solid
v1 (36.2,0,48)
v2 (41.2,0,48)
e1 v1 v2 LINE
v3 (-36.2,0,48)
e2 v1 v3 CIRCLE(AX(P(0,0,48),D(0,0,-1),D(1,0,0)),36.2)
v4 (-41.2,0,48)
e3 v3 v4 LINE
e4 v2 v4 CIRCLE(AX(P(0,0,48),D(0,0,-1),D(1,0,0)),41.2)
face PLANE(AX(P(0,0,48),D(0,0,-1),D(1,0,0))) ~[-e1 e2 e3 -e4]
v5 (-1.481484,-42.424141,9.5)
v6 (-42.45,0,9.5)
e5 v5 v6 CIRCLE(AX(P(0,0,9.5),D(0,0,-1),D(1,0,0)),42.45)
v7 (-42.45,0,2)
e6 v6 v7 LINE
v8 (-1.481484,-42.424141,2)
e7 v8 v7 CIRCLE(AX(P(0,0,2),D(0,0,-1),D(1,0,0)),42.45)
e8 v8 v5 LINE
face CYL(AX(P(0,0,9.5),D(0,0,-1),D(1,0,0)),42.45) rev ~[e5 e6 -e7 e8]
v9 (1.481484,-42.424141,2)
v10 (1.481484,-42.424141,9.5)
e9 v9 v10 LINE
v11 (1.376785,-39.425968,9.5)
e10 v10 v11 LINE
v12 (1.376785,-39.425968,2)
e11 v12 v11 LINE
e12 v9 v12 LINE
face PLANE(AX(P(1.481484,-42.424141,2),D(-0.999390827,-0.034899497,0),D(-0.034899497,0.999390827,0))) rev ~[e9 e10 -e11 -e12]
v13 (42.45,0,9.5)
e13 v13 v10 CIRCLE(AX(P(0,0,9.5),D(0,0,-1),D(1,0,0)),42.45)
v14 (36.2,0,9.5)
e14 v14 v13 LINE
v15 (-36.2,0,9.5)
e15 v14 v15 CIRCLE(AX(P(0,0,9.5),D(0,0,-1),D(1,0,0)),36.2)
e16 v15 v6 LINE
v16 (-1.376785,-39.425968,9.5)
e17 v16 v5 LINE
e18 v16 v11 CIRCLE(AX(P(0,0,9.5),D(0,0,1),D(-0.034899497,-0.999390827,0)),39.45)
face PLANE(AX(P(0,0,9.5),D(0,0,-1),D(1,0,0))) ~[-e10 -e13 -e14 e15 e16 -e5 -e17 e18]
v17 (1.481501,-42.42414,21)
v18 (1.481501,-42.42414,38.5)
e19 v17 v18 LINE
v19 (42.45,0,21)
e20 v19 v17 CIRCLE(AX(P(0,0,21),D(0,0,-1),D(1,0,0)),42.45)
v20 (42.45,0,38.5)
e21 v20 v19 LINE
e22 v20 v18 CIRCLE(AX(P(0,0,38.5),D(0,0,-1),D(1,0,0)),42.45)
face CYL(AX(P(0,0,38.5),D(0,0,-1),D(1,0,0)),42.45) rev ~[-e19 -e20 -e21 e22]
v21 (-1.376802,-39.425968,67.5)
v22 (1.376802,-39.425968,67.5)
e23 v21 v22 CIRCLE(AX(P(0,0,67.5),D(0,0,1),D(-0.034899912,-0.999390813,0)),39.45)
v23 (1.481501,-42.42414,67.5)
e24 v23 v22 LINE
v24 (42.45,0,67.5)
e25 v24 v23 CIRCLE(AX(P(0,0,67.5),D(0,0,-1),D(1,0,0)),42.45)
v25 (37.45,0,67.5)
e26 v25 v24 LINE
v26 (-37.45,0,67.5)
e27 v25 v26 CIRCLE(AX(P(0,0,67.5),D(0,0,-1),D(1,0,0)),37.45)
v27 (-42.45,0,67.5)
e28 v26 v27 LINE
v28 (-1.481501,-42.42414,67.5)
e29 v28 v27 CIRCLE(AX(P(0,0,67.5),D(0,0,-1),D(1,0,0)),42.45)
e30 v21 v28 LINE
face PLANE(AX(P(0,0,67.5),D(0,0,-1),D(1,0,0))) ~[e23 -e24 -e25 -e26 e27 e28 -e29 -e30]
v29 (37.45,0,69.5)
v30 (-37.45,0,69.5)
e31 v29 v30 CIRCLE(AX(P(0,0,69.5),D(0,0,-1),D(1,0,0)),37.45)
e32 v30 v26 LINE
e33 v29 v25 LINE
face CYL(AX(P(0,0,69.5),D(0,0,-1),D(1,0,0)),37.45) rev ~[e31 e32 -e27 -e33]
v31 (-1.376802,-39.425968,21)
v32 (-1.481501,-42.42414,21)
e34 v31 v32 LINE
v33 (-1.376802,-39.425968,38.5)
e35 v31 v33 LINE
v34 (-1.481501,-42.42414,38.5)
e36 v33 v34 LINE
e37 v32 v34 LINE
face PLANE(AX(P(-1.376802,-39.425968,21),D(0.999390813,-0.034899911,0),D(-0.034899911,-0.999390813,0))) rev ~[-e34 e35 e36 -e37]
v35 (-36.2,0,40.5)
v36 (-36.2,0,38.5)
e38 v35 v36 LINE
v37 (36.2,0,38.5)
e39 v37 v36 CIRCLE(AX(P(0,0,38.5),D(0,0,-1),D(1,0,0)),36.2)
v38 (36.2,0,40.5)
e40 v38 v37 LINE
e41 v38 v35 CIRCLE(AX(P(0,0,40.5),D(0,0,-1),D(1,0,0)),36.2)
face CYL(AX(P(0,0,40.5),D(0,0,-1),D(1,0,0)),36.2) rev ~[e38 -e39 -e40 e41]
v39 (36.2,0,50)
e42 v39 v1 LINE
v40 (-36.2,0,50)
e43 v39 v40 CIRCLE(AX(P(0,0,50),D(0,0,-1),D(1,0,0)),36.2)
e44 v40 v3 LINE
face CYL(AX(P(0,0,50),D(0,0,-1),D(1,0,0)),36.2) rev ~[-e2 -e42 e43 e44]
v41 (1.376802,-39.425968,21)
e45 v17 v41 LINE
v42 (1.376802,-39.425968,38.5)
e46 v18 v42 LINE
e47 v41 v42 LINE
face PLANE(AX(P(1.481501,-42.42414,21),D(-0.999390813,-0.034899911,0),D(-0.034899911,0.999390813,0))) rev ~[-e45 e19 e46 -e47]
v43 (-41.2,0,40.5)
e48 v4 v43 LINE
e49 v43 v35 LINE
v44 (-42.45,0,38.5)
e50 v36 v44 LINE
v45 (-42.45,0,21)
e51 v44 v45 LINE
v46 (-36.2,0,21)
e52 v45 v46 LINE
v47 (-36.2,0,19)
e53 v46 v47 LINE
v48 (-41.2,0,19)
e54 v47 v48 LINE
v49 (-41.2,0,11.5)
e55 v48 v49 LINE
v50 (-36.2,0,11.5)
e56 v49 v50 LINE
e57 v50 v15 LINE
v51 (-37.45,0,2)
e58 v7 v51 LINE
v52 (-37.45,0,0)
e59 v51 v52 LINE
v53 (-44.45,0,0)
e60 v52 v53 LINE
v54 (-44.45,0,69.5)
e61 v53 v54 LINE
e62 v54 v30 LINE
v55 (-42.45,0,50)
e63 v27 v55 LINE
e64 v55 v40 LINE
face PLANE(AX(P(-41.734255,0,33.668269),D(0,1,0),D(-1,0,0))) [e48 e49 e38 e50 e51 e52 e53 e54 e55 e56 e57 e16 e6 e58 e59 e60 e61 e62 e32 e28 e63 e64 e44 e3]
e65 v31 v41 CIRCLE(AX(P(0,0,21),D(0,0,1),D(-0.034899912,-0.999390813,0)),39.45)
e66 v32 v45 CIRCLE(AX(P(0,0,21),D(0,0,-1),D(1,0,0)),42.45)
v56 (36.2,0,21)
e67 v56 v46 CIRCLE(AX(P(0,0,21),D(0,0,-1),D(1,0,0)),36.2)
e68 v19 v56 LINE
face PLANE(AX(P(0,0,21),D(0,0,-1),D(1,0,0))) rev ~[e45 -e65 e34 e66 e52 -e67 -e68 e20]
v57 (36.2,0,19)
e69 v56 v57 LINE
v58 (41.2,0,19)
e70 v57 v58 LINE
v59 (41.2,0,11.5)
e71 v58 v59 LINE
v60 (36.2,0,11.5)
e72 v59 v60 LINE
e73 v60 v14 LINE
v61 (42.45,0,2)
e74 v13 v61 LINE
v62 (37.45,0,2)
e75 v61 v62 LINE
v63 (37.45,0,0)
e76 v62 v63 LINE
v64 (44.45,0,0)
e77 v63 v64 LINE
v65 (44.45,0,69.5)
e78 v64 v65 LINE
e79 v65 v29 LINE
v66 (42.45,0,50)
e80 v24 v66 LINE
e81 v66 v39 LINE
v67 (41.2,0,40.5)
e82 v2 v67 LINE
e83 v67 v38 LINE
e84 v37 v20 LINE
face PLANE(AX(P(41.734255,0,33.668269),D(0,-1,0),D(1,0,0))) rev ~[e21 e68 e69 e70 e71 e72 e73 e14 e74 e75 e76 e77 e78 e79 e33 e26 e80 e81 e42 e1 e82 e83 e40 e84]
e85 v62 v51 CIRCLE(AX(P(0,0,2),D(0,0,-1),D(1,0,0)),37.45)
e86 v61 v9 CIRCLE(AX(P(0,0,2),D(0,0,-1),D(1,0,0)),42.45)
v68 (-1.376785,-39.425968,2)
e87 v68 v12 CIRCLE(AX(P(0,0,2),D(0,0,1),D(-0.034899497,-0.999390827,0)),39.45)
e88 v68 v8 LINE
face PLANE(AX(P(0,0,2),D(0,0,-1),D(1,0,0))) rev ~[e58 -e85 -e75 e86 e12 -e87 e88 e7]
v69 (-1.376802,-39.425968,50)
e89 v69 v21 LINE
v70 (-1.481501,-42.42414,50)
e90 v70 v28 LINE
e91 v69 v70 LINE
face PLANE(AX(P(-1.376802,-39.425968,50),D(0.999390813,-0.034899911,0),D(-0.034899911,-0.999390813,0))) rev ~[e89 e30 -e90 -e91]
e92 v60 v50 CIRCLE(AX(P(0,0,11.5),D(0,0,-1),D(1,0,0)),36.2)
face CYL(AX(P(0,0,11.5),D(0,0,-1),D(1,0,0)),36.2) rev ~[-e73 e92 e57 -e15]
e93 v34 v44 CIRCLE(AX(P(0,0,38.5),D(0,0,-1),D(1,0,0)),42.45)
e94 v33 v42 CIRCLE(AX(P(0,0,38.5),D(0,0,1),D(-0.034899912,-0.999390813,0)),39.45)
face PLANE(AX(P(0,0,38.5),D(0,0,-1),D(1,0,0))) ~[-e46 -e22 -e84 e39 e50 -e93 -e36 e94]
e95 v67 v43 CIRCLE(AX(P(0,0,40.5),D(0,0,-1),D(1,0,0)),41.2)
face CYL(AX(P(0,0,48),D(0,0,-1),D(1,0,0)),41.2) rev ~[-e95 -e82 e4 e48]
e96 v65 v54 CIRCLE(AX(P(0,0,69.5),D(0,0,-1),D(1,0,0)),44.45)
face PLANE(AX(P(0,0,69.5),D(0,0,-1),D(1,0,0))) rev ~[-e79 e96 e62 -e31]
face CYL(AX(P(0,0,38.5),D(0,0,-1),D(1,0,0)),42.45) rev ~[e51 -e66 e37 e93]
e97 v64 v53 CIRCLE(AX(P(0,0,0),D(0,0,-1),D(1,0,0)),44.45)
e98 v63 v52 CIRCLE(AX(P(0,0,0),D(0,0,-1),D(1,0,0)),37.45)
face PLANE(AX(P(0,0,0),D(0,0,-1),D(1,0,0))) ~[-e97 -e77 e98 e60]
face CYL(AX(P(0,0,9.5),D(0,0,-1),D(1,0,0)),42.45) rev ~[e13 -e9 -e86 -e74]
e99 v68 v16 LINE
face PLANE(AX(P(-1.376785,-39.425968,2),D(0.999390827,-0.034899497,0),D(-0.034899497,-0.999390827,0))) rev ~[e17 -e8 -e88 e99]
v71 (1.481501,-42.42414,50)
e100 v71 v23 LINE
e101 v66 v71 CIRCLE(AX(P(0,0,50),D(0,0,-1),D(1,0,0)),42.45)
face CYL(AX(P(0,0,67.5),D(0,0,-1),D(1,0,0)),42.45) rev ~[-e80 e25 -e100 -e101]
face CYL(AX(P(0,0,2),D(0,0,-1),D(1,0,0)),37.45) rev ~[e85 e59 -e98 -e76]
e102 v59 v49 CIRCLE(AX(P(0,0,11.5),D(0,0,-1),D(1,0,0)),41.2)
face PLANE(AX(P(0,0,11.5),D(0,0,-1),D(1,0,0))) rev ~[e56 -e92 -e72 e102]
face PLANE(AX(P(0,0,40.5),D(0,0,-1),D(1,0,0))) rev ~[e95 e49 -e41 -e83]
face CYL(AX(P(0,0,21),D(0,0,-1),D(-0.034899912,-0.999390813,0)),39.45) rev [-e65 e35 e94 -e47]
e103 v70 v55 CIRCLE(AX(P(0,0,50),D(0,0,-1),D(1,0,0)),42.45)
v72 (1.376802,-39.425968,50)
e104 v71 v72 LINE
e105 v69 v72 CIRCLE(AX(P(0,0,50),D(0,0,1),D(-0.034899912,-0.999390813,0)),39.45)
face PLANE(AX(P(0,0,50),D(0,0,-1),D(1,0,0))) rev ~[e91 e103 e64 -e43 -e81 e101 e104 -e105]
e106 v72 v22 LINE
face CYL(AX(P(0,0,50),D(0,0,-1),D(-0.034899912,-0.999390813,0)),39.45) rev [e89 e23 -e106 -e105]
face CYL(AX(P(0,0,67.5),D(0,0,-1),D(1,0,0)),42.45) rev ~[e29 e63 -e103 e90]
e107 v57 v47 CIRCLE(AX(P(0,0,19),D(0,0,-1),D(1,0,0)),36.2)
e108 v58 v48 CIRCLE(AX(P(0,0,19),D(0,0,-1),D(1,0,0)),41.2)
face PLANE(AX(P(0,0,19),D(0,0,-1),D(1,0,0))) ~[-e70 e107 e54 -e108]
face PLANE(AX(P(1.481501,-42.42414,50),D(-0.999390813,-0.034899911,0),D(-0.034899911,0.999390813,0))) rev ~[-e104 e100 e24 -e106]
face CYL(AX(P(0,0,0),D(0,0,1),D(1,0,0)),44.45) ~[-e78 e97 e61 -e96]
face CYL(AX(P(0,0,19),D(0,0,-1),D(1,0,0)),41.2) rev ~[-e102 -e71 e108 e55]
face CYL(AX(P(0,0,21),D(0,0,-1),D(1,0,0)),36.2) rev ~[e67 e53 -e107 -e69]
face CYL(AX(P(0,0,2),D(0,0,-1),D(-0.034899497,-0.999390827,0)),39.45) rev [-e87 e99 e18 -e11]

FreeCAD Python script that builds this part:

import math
import FreeCAD as App
import Part
import Sketcher

V = App.Vector
Q = App.Units.Quantity


def add_polygon(sketch, points):
    """Adds a closed chain of lines whose ends are joined by coincident constraints."""
    first, n = sketch.GeometryCount, len(points)
    for a, b in zip(points, points[1:] + points[:1]):
        sketch.addGeometry(Part.LineSegment(App.Vector(*a, 0), App.Vector(*b, 0)), False)
    for i in range(n):
        sketch.addConstraint(Sketcher.Constraint("Coincident", first + i, 2, first + (i + 1) % n, 1))

doc = App.newDocument("Part")
body = doc.addObject("PartDesign::Body", "Body")

# Sketch on XZ plane
sketch1 = body.newObject("Sketcher::SketchObject", "Sketch")
sketch1.AttachmentSupport = (doc.getObject("XZ_Plane"), [""])
sketch1.MapMode = "FlatFace"
add_polygon(sketch1, [(37.5, 69.5), (37.5, 67.5), (42.5, 67.5), (42.5, 50), (36.2, 50), (36.2, 48), (41.2, 48), (41.2, 40.5), (36.2, 40.5), (36.2, 38.5), (42.5, 38.5), (42.5, 21), (36.2, 21), (36.2, 19), (41.2, 19), (41.2, 11.5), (36.2, 11.5), (36.2, 9.5), (42.5, 9.5), (42.5, 2), (37.5, 2), (37.5, 0), (44.5, 0), (44.5, 69.5)])  # lines 0-23
sketch1.addConstraint(Sketcher.Constraint("Vertical", 0))
sketch1.addConstraint(Sketcher.Constraint("Horizontal", 1))
sketch1.addConstraint(Sketcher.Constraint("Vertical", 2))
sketch1.addConstraint(Sketcher.Constraint("Horizontal", 3))
sketch1.addConstraint(Sketcher.Constraint("Vertical", 4))
sketch1.addConstraint(Sketcher.Constraint("Horizontal", 5))
sketch1.addConstraint(Sketcher.Constraint("Vertical", 6))
sketch1.addConstraint(Sketcher.Constraint("Horizontal", 7))
sketch1.addConstraint(Sketcher.Constraint("Vertical", 8))
sketch1.addConstraint(Sketcher.Constraint("Horizontal", 9))
sketch1.addConstraint(Sketcher.Constraint("Vertical", 10))
sketch1.addConstraint(Sketcher.Constraint("Horizontal", 11))
sketch1.addConstraint(Sketcher.Constraint("Vertical", 12))
sketch1.addConstraint(Sketcher.Constraint("Horizontal", 13))
sketch1.addConstraint(Sketcher.Constraint("Vertical", 14))
sketch1.addConstraint(Sketcher.Constraint("Horizontal", 15))
sketch1.addConstraint(Sketcher.Constraint("Vertical", 16))
sketch1.addConstraint(Sketcher.Constraint("Horizontal", 17))
sketch1.addConstraint(Sketcher.Constraint("Vertical", 18))
sketch1.addConstraint(Sketcher.Constraint("Horizontal", 19))
sketch1.addConstraint(Sketcher.Constraint("Vertical", 20))
sketch1.addConstraint(Sketcher.Constraint("Horizontal", 21))
sketch1.addConstraint(Sketcher.Constraint("Vertical", 22))
sketch1.addConstraint(Sketcher.Constraint("Horizontal", 23))
sketch1.addConstraint(Sketcher.Constraint("PointOnObject", 20, 2, -1))
sketch1.addConstraint(Sketcher.Constraint("Vertical", 4, 2, 7, 2))
sketch1.addConstraint(Sketcher.Constraint("Vertical", 2, 2, 9, 2))
sketch1.addConstraint(Sketcher.Constraint("Vertical", 8, 2, 11, 2))
sketch1.addConstraint(Sketcher.Constraint("Vertical", 6, 2, 13, 2))
sketch1.addConstraint(Sketcher.Constraint("Vertical", 12, 2, 15, 2))
sketch1.addConstraint(Sketcher.Constraint("Vertical", 10, 2, 17, 2))
sketch1.addConstraint(Sketcher.Constraint("Vertical", 0, 2, 19, 2))
sketch1.addConstraint(Sketcher.Constraint("Equal", 1, 5))
sketch1.addConstraint(Sketcher.Constraint("Equal", 0, 4))
sketch1.addConstraint(Sketcher.Constraint("Equal", 4, 8))
sketch1.addConstraint(Sketcher.Constraint("Equal", 2, 10))
sketch1.addConstraint(Sketcher.Constraint("Equal", 8, 12))
sketch1.addConstraint(Sketcher.Constraint("Equal", 6, 14))
sketch1.addConstraint(Sketcher.Constraint("Equal", 12, 16))
sketch1.addConstraint(Sketcher.Constraint("Equal", 14, 18))
sketch1.addConstraint(Sketcher.Constraint("Equal", 16, 20))
sketch1.addConstraint(Sketcher.Constraint("DistanceX", 1, 1, 1, 2, Q("5 mm")))
sketch1.addConstraint(Sketcher.Constraint("DistanceX", 21, 1, 21, 2, Q("7 mm")))
sketch1.addConstraint(Sketcher.Constraint("DistanceY", 0, 2, 0, 1, Q("2 mm")))
sketch1.addConstraint(Sketcher.Constraint("DistanceY", 2, 2, 2, 1, Q("17.5 mm")))
sketch1.addConstraint(Sketcher.Constraint("DistanceY", 6, 2, 6, 1, Q("7.5 mm")))
sketch1.addConstraint(Sketcher.Constraint("DistanceX", 3, 2, 3, 1, Q("6.25 mm")))
sketch1.addConstraint(Sketcher.Constraint("DistanceX", -1, 1, 3, 2, Q("36.2 mm")))
revolution = body.newObject("PartDesign::Revolution", "Revolution")
revolution.Profile = sketch1
revolution.ReferenceAxis = (sketch1, ["V_Axis"])
revolution.Angle = 180
revolution.Reversed = True

# Sketch on XY plane
sketch2 = body.newObject("Sketcher::SketchObject", "Sketch001")
sketch2.AttachmentSupport = (doc.getObject("XY_Plane"), [""])
sketch2.MapMode = "FlatFace"
sketch2.AttachmentOffset = App.Placement(V(0, 0, 2), App.Rotation())
sketch2.addGeometry(Part.ArcOfCircle(Part.Circle(V(0, 0, 0), V(0, 0, 1), 42.5), math.radians(-92), math.radians(-88)), False)
sketch2.addGeometry(Part.LineSegment(V(1.5, -42.4, 0), V(1.4, -39.4, 0)), False)
sketch2.addGeometry(Part.ArcOfCircle(Part.Circle(V(0, 0, 0), V(0, 0, 1), 39.4), math.radians(-92), math.radians(-88)), False)
sketch2.addGeometry(Part.LineSegment(V(-1.4, -39.4, 0), V(-1.5, -42.4, 0)), False)
sketch2.addConstraint(Sketcher.Constraint("Coincident", 0, 2, 1, 1))
sketch2.addConstraint(Sketcher.Constraint("Coincident", 1, 2, 2, 2))
sketch2.addConstraint(Sketcher.Constraint("Coincident", 2, 1, 3, 1))
sketch2.addConstraint(Sketcher.Constraint("Coincident", 3, 2, 0, 1))
sketch2.addConstraint(Sketcher.Constraint("Coincident", 0, 3, -1, 1))
sketch2.addConstraint(Sketcher.Constraint("Coincident", 2, 3, -1, 1))
sketch2.addConstraint(Sketcher.Constraint("Horizontal", 1, 2, 2, 1))
sketch2.addConstraint(Sketcher.Constraint("Horizontal", 0, 2, 3, 2))
sketch2.addConstraint(Sketcher.Constraint("Angle", 1, Q("92 deg")))
sketch2.addConstraint(Sketcher.Constraint("Radius", 0, Q("42.45 mm")))
sketch2.addConstraint(Sketcher.Constraint("Radius", 2, Q("39.45 mm")))
sketch2.addConstraint(Sketcher.Constraint("DistanceY", 0, 2, -1, 1, Q("42.424141 mm")))
pad1 = body.newObject("PartDesign::Pad", "Pad")
pad1.Profile = sketch2
pad1.Length = 7.5

# Sketch on XY plane
sketch3 = body.newObject("Sketcher::SketchObject", "Sketch002")
sketch3.AttachmentSupport = (doc.getObject("XY_Plane"), [""])
sketch3.MapMode = "FlatFace"
sketch3.AttachmentOffset = App.Placement(V(0, 0, 21), App.Rotation())
sketch3.addGeometry(Part.ArcOfCircle(Part.Circle(V(0, 0, 0), V(0, 0, 1), 42.4), math.radians(-92), math.radians(-88)), False)
sketch3.addGeometry(Part.LineSegment(V(1.5, -42.4, 0), V(1.4, -39.4, 0)), False)
sketch3.addGeometry(Part.ArcOfCircle(Part.Circle(V(0, 0, 0), V(0, 0, 1), 39.4), math.radians(-92), math.radians(-88)), False)
sketch3.addGeometry(Part.LineSegment(V(-1.4, -39.4, 0), V(-1.5, -42.4, 0)), False)
sketch3.addConstraint(Sketcher.Constraint("Coincident", 0, 2, 1, 1))
sketch3.addConstraint(Sketcher.Constraint("Coincident", 1, 2, 2, 2))
sketch3.addConstraint(Sketcher.Constraint("Coincident", 2, 1, 3, 1))
sketch3.addConstraint(Sketcher.Constraint("Coincident", 3, 2, 0, 1))
sketch3.addConstraint(Sketcher.Constraint("Coincident", 0, 3, -1, 1))
sketch3.addConstraint(Sketcher.Constraint("Coincident", 2, 3, -1, 1))
sketch3.addConstraint(Sketcher.Constraint("Horizontal", 1, 2, 2, 1))
sketch3.addConstraint(Sketcher.Constraint("Horizontal", 0, 2, 3, 2))
sketch3.addConstraint(Sketcher.Constraint("Radius", 0, Q("42.45 mm")))
sketch3.addConstraint(Sketcher.Constraint("Radius", 2, Q("39.45 mm")))
sketch3.addConstraint(Sketcher.Constraint("DistanceX", -1, 1, 0, 2, Q("1.481501 mm")))
sketch3.addConstraint(Sketcher.Constraint("DistanceX", -1, 1, 1, 2, Q("1.376802 mm")))
pad2 = body.newObject("PartDesign::Pad", "Pad001")
pad2.Profile = sketch3
pad2.Length = 17.5

# Sketch on XY plane
sketch4 = body.newObject("Sketcher::SketchObject", "Sketch003")
sketch4.AttachmentSupport = (doc.getObject("XY_Plane"), [""])
sketch4.MapMode = "FlatFace"
sketch4.AttachmentOffset = App.Placement(V(0, 0, 50), App.Rotation())
sketch4.addGeometry(Part.ArcOfCircle(Part.Circle(V(0, 0, 0), V(0, 0, 1), 42.4), math.radians(-92), math.radians(-88)), False)
sketch4.addGeometry(Part.LineSegment(V(1.5, -42.4, 0), V(1.4, -39.4, 0)), False)
sketch4.addGeometry(Part.ArcOfCircle(Part.Circle(V(0, 0, 0), V(0, 0, 1), 39.4), math.radians(-92), math.radians(-88)), False)
sketch4.addGeometry(Part.LineSegment(V(-1.4, -39.4, 0), V(-1.5, -42.4, 0)), False)
sketch4.addConstraint(Sketcher.Constraint("Coincident", 0, 2, 1, 1))
sketch4.addConstraint(Sketcher.Constraint("Coincident", 1, 2, 2, 2))
sketch4.addConstraint(Sketcher.Constraint("Coincident", 2, 1, 3, 1))
sketch4.addConstraint(Sketcher.Constraint("Coincident", 3, 2, 0, 1))
sketch4.addConstraint(Sketcher.Constraint("Coincident", 0, 3, -1, 1))
sketch4.addConstraint(Sketcher.Constraint("Coincident", 2, 3, -1, 1))
sketch4.addConstraint(Sketcher.Constraint("Horizontal", 1, 2, 2, 1))
sketch4.addConstraint(Sketcher.Constraint("Horizontal", 0, 2, 3, 2))
sketch4.addConstraint(Sketcher.Constraint("Radius", 0, Q("42.45 mm")))
sketch4.addConstraint(Sketcher.Constraint("Radius", 2, Q("39.45 mm")))
sketch4.addConstraint(Sketcher.Constraint("DistanceX", -1, 1, 0, 2, Q("1.481501 mm")))
sketch4.addConstraint(Sketcher.Constraint("DistanceX", -1, 1, 1, 2, Q("1.376802 mm")))
pad3 = body.newObject("PartDesign::Pad", "Pad002")
pad3.Profile = sketch4
pad3.Length = 17.5

doc.recompute()
